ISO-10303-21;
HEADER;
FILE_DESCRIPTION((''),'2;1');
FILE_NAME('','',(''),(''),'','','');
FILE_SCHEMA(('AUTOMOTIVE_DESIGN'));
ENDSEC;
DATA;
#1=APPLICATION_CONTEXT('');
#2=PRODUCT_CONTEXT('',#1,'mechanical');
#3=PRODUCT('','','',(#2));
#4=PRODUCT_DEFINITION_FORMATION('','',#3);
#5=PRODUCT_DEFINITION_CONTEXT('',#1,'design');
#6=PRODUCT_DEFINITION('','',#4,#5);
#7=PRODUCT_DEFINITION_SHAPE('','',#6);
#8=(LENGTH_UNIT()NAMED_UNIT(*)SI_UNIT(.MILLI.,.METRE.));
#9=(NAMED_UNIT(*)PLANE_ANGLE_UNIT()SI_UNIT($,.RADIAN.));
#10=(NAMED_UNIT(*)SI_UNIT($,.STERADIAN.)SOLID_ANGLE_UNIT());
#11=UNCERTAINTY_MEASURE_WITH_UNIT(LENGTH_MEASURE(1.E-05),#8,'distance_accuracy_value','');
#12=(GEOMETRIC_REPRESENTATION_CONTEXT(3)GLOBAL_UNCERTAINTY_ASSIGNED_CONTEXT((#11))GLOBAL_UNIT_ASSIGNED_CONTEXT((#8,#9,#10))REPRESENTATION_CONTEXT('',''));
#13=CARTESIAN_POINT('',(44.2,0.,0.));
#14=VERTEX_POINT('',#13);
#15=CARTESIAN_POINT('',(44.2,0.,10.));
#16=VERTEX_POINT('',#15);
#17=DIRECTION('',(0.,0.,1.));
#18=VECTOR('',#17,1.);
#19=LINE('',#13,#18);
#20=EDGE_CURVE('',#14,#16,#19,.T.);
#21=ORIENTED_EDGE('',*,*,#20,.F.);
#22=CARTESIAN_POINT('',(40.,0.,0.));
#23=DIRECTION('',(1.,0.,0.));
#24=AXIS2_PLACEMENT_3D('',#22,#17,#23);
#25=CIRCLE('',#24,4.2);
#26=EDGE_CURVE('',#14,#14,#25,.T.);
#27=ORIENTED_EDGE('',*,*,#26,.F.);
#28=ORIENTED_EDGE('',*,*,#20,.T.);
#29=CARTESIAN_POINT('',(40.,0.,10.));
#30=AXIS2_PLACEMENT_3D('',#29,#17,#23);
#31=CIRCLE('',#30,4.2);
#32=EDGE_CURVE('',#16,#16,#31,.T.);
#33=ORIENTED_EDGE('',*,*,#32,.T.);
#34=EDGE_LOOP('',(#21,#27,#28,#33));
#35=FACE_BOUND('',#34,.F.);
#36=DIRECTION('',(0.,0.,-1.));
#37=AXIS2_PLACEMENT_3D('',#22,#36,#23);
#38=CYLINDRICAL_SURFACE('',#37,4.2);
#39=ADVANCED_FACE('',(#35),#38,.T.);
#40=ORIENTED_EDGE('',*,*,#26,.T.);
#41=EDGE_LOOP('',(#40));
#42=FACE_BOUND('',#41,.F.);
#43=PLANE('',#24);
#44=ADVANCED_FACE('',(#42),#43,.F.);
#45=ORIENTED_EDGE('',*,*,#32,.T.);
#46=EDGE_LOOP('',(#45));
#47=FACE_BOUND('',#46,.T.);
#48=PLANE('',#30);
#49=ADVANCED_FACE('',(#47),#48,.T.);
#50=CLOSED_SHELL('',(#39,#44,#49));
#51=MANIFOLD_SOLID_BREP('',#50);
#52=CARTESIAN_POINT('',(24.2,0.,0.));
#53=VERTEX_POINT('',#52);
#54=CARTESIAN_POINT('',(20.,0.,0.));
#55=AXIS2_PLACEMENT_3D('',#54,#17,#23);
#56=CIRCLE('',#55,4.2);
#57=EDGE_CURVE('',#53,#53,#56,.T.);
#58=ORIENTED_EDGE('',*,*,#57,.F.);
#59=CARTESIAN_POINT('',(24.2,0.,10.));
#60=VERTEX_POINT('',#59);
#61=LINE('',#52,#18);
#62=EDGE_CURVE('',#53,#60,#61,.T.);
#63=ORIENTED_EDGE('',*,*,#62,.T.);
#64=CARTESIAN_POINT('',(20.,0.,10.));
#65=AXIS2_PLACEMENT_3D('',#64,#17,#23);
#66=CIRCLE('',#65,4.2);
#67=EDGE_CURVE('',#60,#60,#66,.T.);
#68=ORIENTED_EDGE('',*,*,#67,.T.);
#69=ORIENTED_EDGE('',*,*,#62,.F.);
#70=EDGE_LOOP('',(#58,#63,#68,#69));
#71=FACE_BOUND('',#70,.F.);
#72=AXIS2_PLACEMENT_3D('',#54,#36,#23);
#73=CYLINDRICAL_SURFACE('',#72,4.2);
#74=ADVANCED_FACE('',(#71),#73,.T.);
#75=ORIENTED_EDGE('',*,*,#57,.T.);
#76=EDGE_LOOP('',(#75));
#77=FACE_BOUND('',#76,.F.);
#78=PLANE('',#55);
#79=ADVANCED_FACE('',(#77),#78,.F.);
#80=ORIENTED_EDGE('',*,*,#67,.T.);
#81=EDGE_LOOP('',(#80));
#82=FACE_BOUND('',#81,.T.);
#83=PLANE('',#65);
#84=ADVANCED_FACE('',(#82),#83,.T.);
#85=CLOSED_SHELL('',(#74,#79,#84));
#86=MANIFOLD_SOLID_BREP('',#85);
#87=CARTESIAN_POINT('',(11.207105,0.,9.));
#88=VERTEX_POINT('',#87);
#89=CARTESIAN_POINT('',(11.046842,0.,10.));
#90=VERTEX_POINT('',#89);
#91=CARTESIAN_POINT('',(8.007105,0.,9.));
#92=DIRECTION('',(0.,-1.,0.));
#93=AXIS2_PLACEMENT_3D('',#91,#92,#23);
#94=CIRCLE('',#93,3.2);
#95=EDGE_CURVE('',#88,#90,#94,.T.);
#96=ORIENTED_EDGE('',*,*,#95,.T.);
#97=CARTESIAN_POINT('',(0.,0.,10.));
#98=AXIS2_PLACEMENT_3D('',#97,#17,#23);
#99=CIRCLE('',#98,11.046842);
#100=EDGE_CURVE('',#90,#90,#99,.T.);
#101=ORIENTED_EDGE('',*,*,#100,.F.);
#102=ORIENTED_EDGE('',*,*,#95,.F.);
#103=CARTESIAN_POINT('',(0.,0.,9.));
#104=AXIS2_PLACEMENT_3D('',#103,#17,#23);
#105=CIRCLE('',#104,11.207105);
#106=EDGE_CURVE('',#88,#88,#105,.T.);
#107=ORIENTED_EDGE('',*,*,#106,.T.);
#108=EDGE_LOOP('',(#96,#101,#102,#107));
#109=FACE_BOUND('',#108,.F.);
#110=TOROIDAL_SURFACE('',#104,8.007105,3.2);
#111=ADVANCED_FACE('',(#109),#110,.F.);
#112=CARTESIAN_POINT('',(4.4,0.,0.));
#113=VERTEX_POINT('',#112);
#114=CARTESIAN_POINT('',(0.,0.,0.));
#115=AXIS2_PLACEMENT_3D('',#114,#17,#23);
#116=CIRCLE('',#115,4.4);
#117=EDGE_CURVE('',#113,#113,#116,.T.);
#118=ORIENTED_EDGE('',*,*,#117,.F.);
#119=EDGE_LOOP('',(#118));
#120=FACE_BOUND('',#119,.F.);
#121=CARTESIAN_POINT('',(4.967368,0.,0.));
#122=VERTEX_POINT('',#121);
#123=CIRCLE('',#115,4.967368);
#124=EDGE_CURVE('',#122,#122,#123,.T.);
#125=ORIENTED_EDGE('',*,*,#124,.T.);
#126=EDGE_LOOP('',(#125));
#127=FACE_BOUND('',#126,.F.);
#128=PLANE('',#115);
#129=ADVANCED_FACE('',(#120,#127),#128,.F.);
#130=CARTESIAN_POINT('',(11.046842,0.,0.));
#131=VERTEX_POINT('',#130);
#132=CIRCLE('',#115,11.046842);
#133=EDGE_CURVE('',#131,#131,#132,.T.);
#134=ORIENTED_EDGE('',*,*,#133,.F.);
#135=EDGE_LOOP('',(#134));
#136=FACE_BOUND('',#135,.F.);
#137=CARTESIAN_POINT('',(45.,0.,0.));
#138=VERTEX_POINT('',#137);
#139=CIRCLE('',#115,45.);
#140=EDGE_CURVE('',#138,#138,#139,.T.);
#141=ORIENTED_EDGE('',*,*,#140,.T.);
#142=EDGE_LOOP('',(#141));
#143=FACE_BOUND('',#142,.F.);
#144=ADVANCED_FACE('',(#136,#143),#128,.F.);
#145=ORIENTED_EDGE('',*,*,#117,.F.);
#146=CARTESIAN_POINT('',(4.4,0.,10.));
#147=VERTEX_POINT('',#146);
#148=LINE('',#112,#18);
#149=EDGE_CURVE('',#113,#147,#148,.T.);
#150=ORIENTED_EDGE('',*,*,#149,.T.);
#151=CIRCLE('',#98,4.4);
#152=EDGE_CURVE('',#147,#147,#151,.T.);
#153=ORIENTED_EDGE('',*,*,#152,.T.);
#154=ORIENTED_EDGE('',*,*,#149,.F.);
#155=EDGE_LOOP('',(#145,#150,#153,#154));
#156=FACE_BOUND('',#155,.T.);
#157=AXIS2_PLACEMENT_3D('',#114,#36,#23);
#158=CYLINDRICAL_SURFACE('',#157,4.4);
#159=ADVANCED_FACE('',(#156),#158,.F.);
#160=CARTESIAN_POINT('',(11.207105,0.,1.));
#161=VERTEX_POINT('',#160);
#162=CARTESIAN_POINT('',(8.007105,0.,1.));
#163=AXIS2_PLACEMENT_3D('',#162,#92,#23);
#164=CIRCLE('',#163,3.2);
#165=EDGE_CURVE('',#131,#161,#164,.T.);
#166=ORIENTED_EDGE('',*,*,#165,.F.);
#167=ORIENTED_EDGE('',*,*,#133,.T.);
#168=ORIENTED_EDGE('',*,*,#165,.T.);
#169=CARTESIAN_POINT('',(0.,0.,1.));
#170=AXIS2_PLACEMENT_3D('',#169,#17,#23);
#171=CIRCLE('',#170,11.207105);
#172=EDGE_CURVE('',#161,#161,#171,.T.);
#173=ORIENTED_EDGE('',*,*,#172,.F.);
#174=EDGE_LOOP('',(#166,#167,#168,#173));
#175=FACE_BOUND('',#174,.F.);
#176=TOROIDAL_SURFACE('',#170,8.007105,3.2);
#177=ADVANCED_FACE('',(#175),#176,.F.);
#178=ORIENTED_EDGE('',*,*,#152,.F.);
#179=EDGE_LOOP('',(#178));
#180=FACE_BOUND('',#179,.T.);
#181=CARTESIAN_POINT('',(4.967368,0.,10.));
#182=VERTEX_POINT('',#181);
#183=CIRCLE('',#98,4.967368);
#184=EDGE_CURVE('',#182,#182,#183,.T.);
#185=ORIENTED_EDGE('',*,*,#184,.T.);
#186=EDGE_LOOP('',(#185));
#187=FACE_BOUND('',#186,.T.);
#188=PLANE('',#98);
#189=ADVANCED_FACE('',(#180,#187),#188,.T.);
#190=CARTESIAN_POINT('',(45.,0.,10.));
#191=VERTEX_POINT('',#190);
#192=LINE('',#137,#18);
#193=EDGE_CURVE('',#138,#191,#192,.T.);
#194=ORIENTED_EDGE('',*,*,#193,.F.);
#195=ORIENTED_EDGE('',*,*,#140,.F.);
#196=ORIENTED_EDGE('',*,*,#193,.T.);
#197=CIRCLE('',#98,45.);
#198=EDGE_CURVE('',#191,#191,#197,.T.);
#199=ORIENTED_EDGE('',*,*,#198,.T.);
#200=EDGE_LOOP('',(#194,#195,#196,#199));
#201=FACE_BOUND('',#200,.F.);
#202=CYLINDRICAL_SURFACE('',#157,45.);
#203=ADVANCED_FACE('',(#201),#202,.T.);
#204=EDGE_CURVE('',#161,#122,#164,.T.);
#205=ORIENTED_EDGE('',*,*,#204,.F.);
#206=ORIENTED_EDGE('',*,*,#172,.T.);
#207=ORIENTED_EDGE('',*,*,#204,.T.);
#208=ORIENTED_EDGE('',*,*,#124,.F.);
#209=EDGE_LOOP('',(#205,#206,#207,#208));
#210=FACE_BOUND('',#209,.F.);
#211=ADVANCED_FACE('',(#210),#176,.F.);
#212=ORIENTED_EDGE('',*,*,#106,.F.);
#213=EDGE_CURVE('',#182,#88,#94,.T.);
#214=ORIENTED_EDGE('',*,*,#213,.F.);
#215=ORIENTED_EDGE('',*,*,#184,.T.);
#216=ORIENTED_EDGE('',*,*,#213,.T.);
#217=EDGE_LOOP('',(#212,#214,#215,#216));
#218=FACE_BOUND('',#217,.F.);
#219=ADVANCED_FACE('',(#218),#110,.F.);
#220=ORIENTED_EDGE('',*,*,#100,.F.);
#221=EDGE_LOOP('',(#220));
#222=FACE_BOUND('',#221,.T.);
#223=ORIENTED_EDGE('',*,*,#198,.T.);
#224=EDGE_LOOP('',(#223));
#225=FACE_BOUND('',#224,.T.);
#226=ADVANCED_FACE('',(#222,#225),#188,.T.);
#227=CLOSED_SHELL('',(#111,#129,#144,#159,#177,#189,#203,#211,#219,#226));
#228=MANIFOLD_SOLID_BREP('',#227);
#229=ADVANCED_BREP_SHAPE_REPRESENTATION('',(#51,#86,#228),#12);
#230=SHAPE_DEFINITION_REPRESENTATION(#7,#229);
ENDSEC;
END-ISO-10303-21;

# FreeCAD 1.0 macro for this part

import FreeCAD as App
import Part
import Sketcher
from FreeCAD import Vector
Q = App.Units.Quantity

doc = App.newDocument("Part")
body = doc.addObject("PartDesign::Body", "Body")

# Sketch on XY plane
sketch1 = body.newObject("Sketcher::SketchObject", "Sketch")
sketch1.AttachmentSupport = (doc.getObject("XY_Plane"), [""])
sketch1.MapMode = "FlatFace"
sketch1.addGeometry(Part.Circle(Vector(0, 0, 0), Vector(0, 0, 1), 4.4), False)
sketch1.addConstraint([
    Sketcher.Constraint("Coincident", 0, 3, -1, 1),
    Sketcher.Constraint("Diameter", 0, Q("8.8 mm")),
])
pad1 = body.newObject("PartDesign::Pad", "Pad")
pad1.Profile = sketch1
pad1.Length = 10
body2 = doc.addObject("PartDesign::Body", "Body001")

# Sketch on XY plane
sketch2 = body2.newObject("Sketcher::SketchObject", "Sketch001")
sketch2.AttachmentSupport = (doc.getObject("XY_Plane001"), [""])
sketch2.MapMode = "FlatFace"
sketch2.addGeometry(Part.Circle(Vector(8, 0, 0), Vector(0, 0, 1), 3.2), False)
sketch2.addConstraint([
    Sketcher.Constraint("PointOnObject", 0, 3, -1),
    Sketcher.Constraint("Diameter", 0, Q("6.4 mm")),
    Sketcher.Constraint("DistanceX", -1, 1, 0, 3, Q("8.007105 mm")),
])
revolution = body2.newObject("PartDesign::Revolution", "Revolution")
revolution.Profile = sketch2
revolution.ReferenceAxis = (sketch2, ["V_Axis"])
revolution.Angle = 360
body3 = doc.addObject("PartDesign::Body", "Body002")
doc.recompute()

body2.Placement = App.Placement(Vector(0, 0, 0), App.Rotation(Vector(1, 0, 0), 90))
boolean = body3.newObject("PartDesign::Boolean", "Boolean")
boolean.Type = "Fuse"
boolean.addObjects([body2])
body4 = doc.addObject("PartDesign::Body", "Body003")
doc.recompute()

body3.Placement = App.Placement(Vector(0, 0, 9), App.Rotation(Vector(0, 0, 1), 0))
boolean2 = body4.newObject("PartDesign::Boolean", "Boolean001")
boolean2.Type = "Fuse"
boolean2.addObjects([body3])
body5 = doc.addObject("PartDesign::Body", "Body004")

# Sketch on XY plane
sketch3 = body5.newObject("Sketcher::SketchObject", "Sketch002")
sketch3.AttachmentSupport = (doc.getObject("XY_Plane004"), [""])
sketch3.MapMode = "FlatFace"
sketch3.addGeometry(Part.Circle(Vector(8, 0, 0), Vector(0, 0, 1), 3.2), False)
sketch3.addConstraint([
    Sketcher.Constraint("PointOnObject", 0, 3, -1),
    Sketcher.Constraint("Diameter", 0, Q("6.4 mm")),
    Sketcher.Constraint("DistanceX", -1, 1, 0, 3, Q("8.007105 mm")),
])
revolution2 = body5.newObject("PartDesign::Revolution", "Revolution001")
revolution2.Profile = sketch3
revolution2.ReferenceAxis = (sketch3, ["V_Axis"])
revolution2.Angle = 360
body6 = doc.addObject("PartDesign::Body", "Body005")
doc.recompute()

body5.Placement = App.Placement(Vector(0, 0, 0), App.Rotation(Vector(1, 0, 0), 90))
boolean3 = body6.newObject("PartDesign::Boolean", "Boolean002")
boolean3.Type = "Fuse"
boolean3.addObjects([body5])
body7 = doc.addObject("PartDesign::Body", "Body006")
doc.recompute()

body6.Placement = App.Placement(Vector(0, 0, 1), App.Rotation(Vector(0, 0, 1), 0))
boolean4 = body7.newObject("PartDesign::Boolean", "Boolean003")
boolean4.Type = "Fuse"
boolean4.addObjects([body6])
body8 = doc.addObject("PartDesign::Body", "Body007")

# Sketch on XY plane
sketch4 = body8.newObject("Sketcher::SketchObject", "Sketch003")
sketch4.AttachmentSupport = (doc.getObject("XY_Plane007"), [""])
sketch4.MapMode = "FlatFace"
sketch4.addGeometry(Part.Circle(Vector(0, 0, 0), Vector(0, 0, 1), 45), False)
sketch4.addConstraint([
    Sketcher.Constraint("Coincident", 0, 3, -1, 1),
    Sketcher.Constraint("Diameter", 0, Q("90 mm")),
])
pad2 = body8.newObject("PartDesign::Pad", "Pad001")
pad2.Profile = sketch4
pad2.Length = 10
doc.recompute()

boolean5 = body8.newObject("PartDesign::Boolean", "Boolean004")
boolean5.Type = "Cut"
boolean5.addObjects([body7])
doc.recompute()

boolean6 = body8.newObject("PartDesign::Boolean", "Boolean005")
boolean6.Type = "Cut"
boolean6.addObjects([body4])
doc.recompute()

boolean7 = body8.newObject("PartDesign::Boolean", "Boolean006")
boolean7.Type = "Cut"
boolean7.addObjects([body])
body9 = doc.addObject("PartDesign::Body", "Body008")

# Sketch on XY plane
sketch5 = body9.newObject("Sketcher::SketchObject", "Sketch004")
sketch5.AttachmentSupport = (doc.getObject("XY_Plane008"), [""])
sketch5.MapMode = "FlatFace"
sketch5.addGeometry(Part.Circle(Vector(40, 0, 0), Vector(0, 0, 1), 4.2), False)
sketch5.addConstraint([
    Sketcher.Constraint("PointOnObject", 0, 3, -1),
    Sketcher.Constraint("Diameter", 0, Q("8.4 mm")),
    Sketcher.Constraint("DistanceX", -1, 1, 0, 3, Q("40 mm")),
])
pad3 = body9.newObject("PartDesign::Pad", "Pad002")
pad3.Profile = sketch5
pad3.Length = 10
body10 = doc.addObject("PartDesign::Body", "Body009")

# Sketch on XY plane
sketch6 = body10.newObject("Sketcher::SketchObject", "Sketch005")
sketch6.AttachmentSupport = (doc.getObject("XY_Plane009"), [""])
sketch6.MapMode = "FlatFace"
sketch6.addGeometry(Part.Circle(Vector(20, 0, 0), Vector(0, 0, 1), 4.2), False)
sketch6.addConstraint([
    Sketcher.Constraint("PointOnObject", 0, 3, -1),
    Sketcher.Constraint("Diameter", 0, Q("8.4 mm")),
    Sketcher.Constraint("DistanceX", -1, 1, 0, 3, Q("20 mm")),
])
pad4 = body10.newObject("PartDesign::Pad", "Pad003")
pad4.Profile = sketch6
pad4.Length = 10

doc.recompute()
